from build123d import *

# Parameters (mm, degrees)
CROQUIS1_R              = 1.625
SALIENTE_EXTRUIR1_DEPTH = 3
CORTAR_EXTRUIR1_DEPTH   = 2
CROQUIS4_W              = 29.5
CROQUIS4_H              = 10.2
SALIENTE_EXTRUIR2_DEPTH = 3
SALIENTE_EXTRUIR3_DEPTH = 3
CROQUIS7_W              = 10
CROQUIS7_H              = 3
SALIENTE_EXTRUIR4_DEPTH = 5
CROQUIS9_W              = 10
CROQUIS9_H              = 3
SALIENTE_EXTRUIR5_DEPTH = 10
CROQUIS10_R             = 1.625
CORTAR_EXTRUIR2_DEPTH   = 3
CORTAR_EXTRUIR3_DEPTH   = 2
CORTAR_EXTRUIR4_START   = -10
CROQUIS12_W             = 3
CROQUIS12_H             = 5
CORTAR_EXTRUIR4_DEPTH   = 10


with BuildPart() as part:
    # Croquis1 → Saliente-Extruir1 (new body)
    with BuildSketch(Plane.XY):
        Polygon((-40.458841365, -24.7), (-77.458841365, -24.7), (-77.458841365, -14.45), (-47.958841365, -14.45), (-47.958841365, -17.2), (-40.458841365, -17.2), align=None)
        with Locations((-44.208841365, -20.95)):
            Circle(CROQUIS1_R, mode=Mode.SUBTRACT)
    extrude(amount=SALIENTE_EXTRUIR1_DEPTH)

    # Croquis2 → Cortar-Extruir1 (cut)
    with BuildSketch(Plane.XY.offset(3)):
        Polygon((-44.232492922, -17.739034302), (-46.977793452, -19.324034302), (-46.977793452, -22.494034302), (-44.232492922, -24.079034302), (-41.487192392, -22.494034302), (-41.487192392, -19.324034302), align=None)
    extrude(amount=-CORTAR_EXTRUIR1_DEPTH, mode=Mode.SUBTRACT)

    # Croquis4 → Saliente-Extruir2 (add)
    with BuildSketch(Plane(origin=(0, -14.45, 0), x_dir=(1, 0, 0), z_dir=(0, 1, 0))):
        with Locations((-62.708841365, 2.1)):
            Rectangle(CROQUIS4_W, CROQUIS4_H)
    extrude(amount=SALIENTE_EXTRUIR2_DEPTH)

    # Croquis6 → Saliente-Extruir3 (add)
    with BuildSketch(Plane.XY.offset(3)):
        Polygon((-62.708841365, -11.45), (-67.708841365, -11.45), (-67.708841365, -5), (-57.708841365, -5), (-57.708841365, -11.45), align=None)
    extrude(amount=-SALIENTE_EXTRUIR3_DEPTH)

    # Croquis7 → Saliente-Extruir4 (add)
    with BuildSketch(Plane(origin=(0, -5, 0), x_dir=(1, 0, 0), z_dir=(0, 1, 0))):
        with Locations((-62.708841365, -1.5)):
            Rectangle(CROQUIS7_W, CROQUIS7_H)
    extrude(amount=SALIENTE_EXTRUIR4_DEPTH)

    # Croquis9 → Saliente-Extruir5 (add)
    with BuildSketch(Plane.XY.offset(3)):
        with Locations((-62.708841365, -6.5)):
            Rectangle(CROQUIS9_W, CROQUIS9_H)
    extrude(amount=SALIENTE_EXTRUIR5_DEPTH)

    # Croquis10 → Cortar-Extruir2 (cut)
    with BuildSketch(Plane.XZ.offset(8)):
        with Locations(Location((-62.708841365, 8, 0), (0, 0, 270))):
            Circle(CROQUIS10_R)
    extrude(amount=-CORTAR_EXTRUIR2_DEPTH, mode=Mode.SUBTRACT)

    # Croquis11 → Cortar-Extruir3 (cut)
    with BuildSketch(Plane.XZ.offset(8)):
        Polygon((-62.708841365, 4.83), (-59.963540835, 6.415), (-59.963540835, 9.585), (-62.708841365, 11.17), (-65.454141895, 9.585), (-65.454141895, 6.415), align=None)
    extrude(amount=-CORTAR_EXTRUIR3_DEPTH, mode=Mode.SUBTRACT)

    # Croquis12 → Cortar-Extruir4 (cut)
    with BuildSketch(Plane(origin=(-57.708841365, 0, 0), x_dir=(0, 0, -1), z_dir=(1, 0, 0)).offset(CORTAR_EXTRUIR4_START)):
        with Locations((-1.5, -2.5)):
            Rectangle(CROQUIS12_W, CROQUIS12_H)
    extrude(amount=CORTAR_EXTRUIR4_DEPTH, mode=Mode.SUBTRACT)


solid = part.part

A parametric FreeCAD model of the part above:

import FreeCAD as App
import Part
import Sketcher
Q = App.Units.Quantity

doc = App.newDocument("Part")
body = doc.addObject("PartDesign::Body", "Body")

# Sketch on XY plane
sketch1 = doc.addObject("Sketcher::SketchObject", "Sketch")
body.addObject(sketch1)
sketch1.AttachmentSupport = (doc.XY_Plane, [""])
sketch1.MapMode = "FlatFace"
sketch1.addGeometry([
    Part.LineSegment(App.Vector(-77.458841, -24.7, 0), App.Vector(-40.458841, -24.7, 0)),  # 0
    Part.LineSegment(App.Vector(-40.458841, -24.7, 0), App.Vector(-40.458841, -17.2, 0)),  # 1
    Part.LineSegment(App.Vector(-40.458841, -17.2, 0), App.Vector(-47.958841, -17.2, 0)),  # 2
    Part.LineSegment(App.Vector(-47.958841, -17.2, 0), App.Vector(-47.958841, -14.45, 0)),  # 3
    Part.LineSegment(App.Vector(-47.958841, -14.45, 0), App.Vector(-77.458841, -14.45, 0)),  # 4
    Part.LineSegment(App.Vector(-77.458841, -14.45, 0), App.Vector(-77.458841, -24.7, 0)),  # 5
    Part.Circle(App.Vector(-44.208841, -20.95, 0), App.Vector(0, 0, 1), 1.625),  # 6
], False)
sketch1.addConstraint([
    Sketcher.Constraint("Coincident", 0, 2, 1, 1),
    Sketcher.Constraint("Coincident", 1, 2, 2, 1),
    Sketcher.Constraint("Coincident", 2, 2, 3, 1),
    Sketcher.Constraint("Coincident", 3, 2, 4, 1),
    Sketcher.Constraint("Coincident", 4, 2, 5, 1),
    Sketcher.Constraint("Coincident", 5, 2, 0, 1),
    Sketcher.Constraint("Horizontal", 0),
    Sketcher.Constraint("Vertical", 1),
    Sketcher.Constraint("Horizontal", 2),
    Sketcher.Constraint("Vertical", 3),
    Sketcher.Constraint("Horizontal", 4),
    Sketcher.Constraint("Vertical", 5),
    Sketcher.Constraint("Equal", 2, 1),
    Sketcher.Constraint("Diameter", 6, 3.25),
    Sketcher.Constraint("DistanceX", 0, 1, 0, 2, 37.0),
    Sketcher.Constraint("DistanceX", 2, 2, 2, 1, 7.5),
    Sketcher.Constraint("DistanceY", 3, 1, 3, 2, 2.75),
    Sketcher.Constraint("DistanceY", 0, 2, -1, 1, 24.7),
    Sketcher.Constraint("DistanceY", 6, 3, 3, 2, 6.5),
    Sketcher.Constraint("DistanceX", 6, 3, 0, 2, 3.75),
    Sketcher.Constraint("DistanceX", 6, 3, -1, 1, 44.208841),
])
pad1 = doc.addObject("PartDesign::Pad", "Pad")
body.addObject(pad1)
pad1.Profile = sketch1
pad1.Length = 3

# Sketch on XY plane
sketch2 = doc.addObject("Sketcher::SketchObject", "Sketch001")
body.addObject(sketch2)
sketch2.AttachmentSupport = (doc.XY_Plane, [""])
sketch2.MapMode = "FlatFace"
sketch2.AttachmentOffset = App.Placement(App.Vector(0, 0, 3), App.Rotation())
sketch2.addGeometry([
    Part.LineSegment(App.Vector(-44.232493, -17.739034, 0), App.Vector(-46.977793, -19.324034, 0)),  # 0
    Part.LineSegment(App.Vector(-46.977793, -19.324034, 0), App.Vector(-46.977793, -22.494034, 0)),  # 1
    Part.LineSegment(App.Vector(-46.977793, -22.494034, 0), App.Vector(-44.232493, -24.079034, 0)),  # 2
    Part.LineSegment(App.Vector(-44.232493, -24.079034, 0), App.Vector(-41.487192, -22.494034, 0)),  # 3
    Part.LineSegment(App.Vector(-41.487192, -22.494034, 0), App.Vector(-41.487192, -19.324034, 0)),  # 4
    Part.LineSegment(App.Vector(-41.487192, -19.324034, 0), App.Vector(-44.232493, -17.739034, 0)),  # 5
], False)
sketch2.addConstraint([
    Sketcher.Constraint("Coincident", 0, 2, 1, 1),
    Sketcher.Constraint("Coincident", 1, 2, 2, 1),
    Sketcher.Constraint("Coincident", 2, 2, 3, 1),
    Sketcher.Constraint("Coincident", 3, 2, 4, 1),
    Sketcher.Constraint("Coincident", 4, 2, 5, 1),
    Sketcher.Constraint("Coincident", 5, 2, 0, 1),
    Sketcher.Constraint("Vertical", 1),
    Sketcher.Constraint("Vertical", 4),
    Sketcher.Constraint("Parallel", 0, 3),
    Sketcher.Constraint("Parallel", 2, 5),
    Sketcher.Constraint("Horizontal", 1, 2, 3, 2),
    Sketcher.Constraint("Horizontal", 0, 2, 4, 2),
    Sketcher.Constraint("Vertical", 2, 2, 5, 2),
    Sketcher.Constraint("Angle", 0, Q("-150 deg")),
    Sketcher.Constraint("DistanceY", 1, 2, 1, 1, 3.17),
    Sketcher.Constraint("Distance", 0, 3.17),
    Sketcher.Constraint("DistanceX", 0, 2, -1, 1, 46.977793),
    Sketcher.Constraint("DistanceY", 0, 2, -1, 1, 19.324034),
])
pocket1 = doc.addObject("PartDesign::Pocket", "Pocket")
body.addObject(pocket1)
pocket1.Profile = sketch2
pocket1.Length = 2

# Sketch on XZ plane
sketch3 = doc.addObject("Sketcher::SketchObject", "Sketch002")
body.addObject(sketch3)
sketch3.AttachmentSupport = (doc.XZ_Plane, [""])
sketch3.MapMode = "FlatFace"
sketch3.AttachmentOffset = App.Placement(App.Vector(0, 0, 14.45), App.Rotation())
sketch3.addGeometry([
    Part.LineSegment(App.Vector(-77.458841, -7.2, 0), App.Vector(-77.458841, 3, 0)),
    Part.LineSegment(App.Vector(-77.458841, 3, 0), App.Vector(-47.958841, 3, 0)),
    Part.LineSegment(App.Vector(-47.958841, 3, 0), App.Vector(-47.958841, -7.2, 0)),
    Part.LineSegment(App.Vector(-47.958841, -7.2, 0), App.Vector(-77.458841, -7.2, 0)),
], False)
sketch3.addConstraint([
    Sketcher.Constraint("Coincident", 0, 2, 1, 1),
    Sketcher.Constraint("Coincident", 1, 2, 2, 1),
    Sketcher.Constraint("Coincident", 2, 2, 3, 1),
    Sketcher.Constraint("Coincident", 3, 2, 0, 1),
    Sketcher.Constraint("Vertical", 0),
    Sketcher.Constraint("Horizontal", 1),
    Sketcher.Constraint("Vertical", 2),
    Sketcher.Constraint("Horizontal", 3),
    Sketcher.Constraint("DistanceX", 1, 1, 1, 2, 29.5),
    Sketcher.Constraint("DistanceY", 0, 1, 0, 2, 10.2),
    Sketcher.Constraint("DistanceY", -1, 1, 0, 2, 3.0),
    Sketcher.Constraint("DistanceX", 0, 2, -1, 1, 77.458841),
])
pad2 = doc.addObject("PartDesign::Pad", "Pad001")
body.addObject(pad2)
pad2.Profile = sketch3
pad2.Length = 3
pad2.Reversed = True

# Sketch on XY plane
sketch4 = doc.addObject("Sketcher::SketchObject", "Sketch003")
body.addObject(sketch4)
sketch4.AttachmentSupport = (doc.XY_Plane, [""])
sketch4.MapMode = "FlatFace"
sketch4.AttachmentOffset = App.Placement(App.Vector(0, 0, 3), App.Rotation())
sketch4.addGeometry([
    Part.LineSegment(App.Vector(-67.708841, -11.45, 0), App.Vector(-57.708841, -11.45, 0)),
    Part.LineSegment(App.Vector(-57.708841, -11.45, 0), App.Vector(-57.708841, -5, 0)),
    Part.LineSegment(App.Vector(-57.708841, -5, 0), App.Vector(-67.708841, -5, 0)),
    Part.LineSegment(App.Vector(-67.708841, -5, 0), App.Vector(-67.708841, -11.45, 0)),
], False)
sketch4.addConstraint([
    Sketcher.Constraint("Coincident", 0, 2, 1, 1),
    Sketcher.Constraint("Coincident", 1, 2, 2, 1),
    Sketcher.Constraint("Coincident", 2, 2, 3, 1),
    Sketcher.Constraint("Coincident", 3, 2, 0, 1),
    Sketcher.Constraint("Horizontal", 0),
    Sketcher.Constraint("Vertical", 1),
    Sketcher.Constraint("Horizontal", 2),
    Sketcher.Constraint("Vertical", 3),
    Sketcher.Constraint("DistanceX", 0, 1, 0, 2, 10.0),
    Sketcher.Constraint("DistanceY", 1, 2, -1, 1, 5.0),
    Sketcher.Constraint("DistanceY", 1, 1, 1, 2, 6.45),
    Sketcher.Constraint("DistanceX", 0, 2, -1, 1, 57.708841),
])
pad3 = doc.addObject("PartDesign::Pad", "Pad002")
body.addObject(pad3)
pad3.Profile = sketch4
pad3.Length = 3
pad3.Reversed = True

# Sketch on XZ plane
sketch5 = doc.addObject("Sketcher::SketchObject", "Sketch004")
body.addObject(sketch5)
sketch5.AttachmentSupport = (doc.XZ_Plane, [""])
sketch5.MapMode = "FlatFace"
sketch5.AttachmentOffset = App.Placement(App.Vector(0, 0, 5), App.Rotation())
sketch5.addGeometry([
    Part.LineSegment(App.Vector(-67.708841, 0, 0), App.Vector(-67.708841, 3, 0)),
    Part.LineSegment(App.Vector(-67.708841, 3, 0), App.Vector(-57.708841, 3, 0)),
    Part.LineSegment(App.Vector(-57.708841, 3, 0), App.Vector(-57.708841, 0, 0)),
    Part.LineSegment(App.Vector(-57.708841, 0, 0), App.Vector(-67.708841, 0, 0)),
], False)
sketch5.addConstraint([
    Sketcher.Constraint("Coincident", 0, 2, 1, 1),
    Sketcher.Constraint("Coincident", 1, 2, 2, 1),
    Sketcher.Constraint("Coincident", 2, 2, 3, 1),
    Sketcher.Constraint("Coincident", 3, 2, 0, 1),
    Sketcher.Constraint("Vertical", 0),
    Sketcher.Constraint("Horizontal", 1),
    Sketcher.Constraint("Vertical", 2),
    Sketcher.Constraint("Horizontal", 3),
    Sketcher.Constraint("PointOnObject", 2, 2, -1),
    Sketcher.Constraint("DistanceX", 1, 1, 1, 2, 10.0),
    Sketcher.Constraint("DistanceY", 0, 1, 0, 2, 3.0),
    Sketcher.Constraint("DistanceX", 0, 2, -1, 1, 67.708841),
])
pad4 = doc.addObject("PartDesign::Pad", "Pad003")
body.addObject(pad4)
pad4.Profile = sketch5
pad4.Length = 5
pad4.Reversed = True

# Sketch on XY plane
sketch6 = doc.addObject("Sketcher::SketchObject", "Sketch005")
body.addObject(sketch6)
sketch6.AttachmentSupport = (doc.XY_Plane, [""])
sketch6.MapMode = "FlatFace"
sketch6.AttachmentOffset = App.Placement(App.Vector(0, 0, 3), App.Rotation())
sketch6.addGeometry([
    Part.LineSegment(App.Vector(-67.708841, -5, 0), App.Vector(-67.708841, -8, 0)),
    Part.LineSegment(App.Vector(-67.708841, -8, 0), App.Vector(-57.708841, -8, 0)),
    Part.LineSegment(App.Vector(-57.708841, -8, 0), App.Vector(-57.708841, -5, 0)),
    Part.LineSegment(App.Vector(-57.708841, -5, 0), App.Vector(-67.708841, -5, 0)),
], False)
sketch6.addConstraint([
    Sketcher.Constraint("Coincident", 0, 2, 1, 1),
    Sketcher.Constraint("Coincident", 1, 2, 2, 1),
    Sketcher.Constraint("Coincident", 2, 2, 3, 1),
    Sketcher.Constraint("Coincident", 3, 2, 0, 1),
    Sketcher.Constraint("Vertical", 0),
    Sketcher.Constraint("Horizontal", 1),
    Sketcher.Constraint("Vertical", 2),
    Sketcher.Constraint("Horizontal", 3),
    Sketcher.Constraint("DistanceX", 1, 1, 1, 2, 10.0),
    Sketcher.Constraint("DistanceY", 0, 2, 0, 1, 3.0),
    Sketcher.Constraint("DistanceY", 0, 2, -1, 1, 8.0),
    Sketcher.Constraint("DistanceX", 0, 2, -1, 1, 67.708841),
])
pad5 = doc.addObject("PartDesign::Pad", "Pad004")
body.addObject(pad5)
pad5.Profile = sketch6
pad5.Length = 10

# Sketch on XZ plane
sketch7 = doc.addObject("Sketcher::SketchObject", "Sketch006")
body.addObject(sketch7)
sketch7.AttachmentSupport = (doc.XZ_Plane, [""])
sketch7.MapMode = "FlatFace"
sketch7.AttachmentOffset = App.Placement(App.Vector(0, 0, 8), App.Rotation())
sketch7.addGeometry(Part.Circle(App.Vector(-62.708841, 8, 0), App.Vector(0, 0, 1), 1.625), False)
sketch7.addConstraint([
    Sketcher.Constraint("Diameter", 0, 3.25),
    Sketcher.Constraint("DistanceY", -1, 1, 0, 3, 8.0),
    Sketcher.Constraint("DistanceX", 0, 3, -1, 1, 62.708841),
])
pocket2 = doc.addObject("PartDesign::Pocket", "Pocket001")
body.addObject(pocket2)
pocket2.Profile = sketch7
pocket2.Length = 3

# Sketch on XZ plane
sketch8 = doc.addObject("Sketcher::SketchObject", "Sketch007")
body.addObject(sketch8)
sketch8.AttachmentSupport = (doc.XZ_Plane, [""])
sketch8.MapMode = "FlatFace"
sketch8.AttachmentOffset = App.Placement(App.Vector(0, 0, 8), App.Rotation())
sketch8.addGeometry([
    Part.LineSegment(App.Vector(-62.708841, 4.83, 0), App.Vector(-59.963541, 6.415, 0)),  # 0
    Part.LineSegment(App.Vector(-59.963541, 6.415, 0), App.Vector(-59.963541, 9.585, 0)),  # 1
    Part.LineSegment(App.Vector(-59.963541, 9.585, 0), App.Vector(-62.708841, 11.17, 0)),  # 2
    Part.LineSegment(App.Vector(-62.708841, 11.17, 0), App.Vector(-65.454142, 9.585, 0)),  # 3
    Part.LineSegment(App.Vector(-65.454142, 9.585, 0), App.Vector(-65.454142, 6.415, 0)),  # 4
    Part.LineSegment(App.Vector(-65.454142, 6.415, 0), App.Vector(-62.708841, 4.83, 0)),  # 5
], False)
sketch8.addConstraint([
    Sketcher.Constraint("Coincident", 0, 2, 1, 1),
    Sketcher.Constraint("Coincident", 1, 2, 2, 1),
    Sketcher.Constraint("Coincident", 2, 2, 3, 1),
    Sketcher.Constraint("Coincident", 3, 2, 4, 1),
    Sketcher.Constraint("Coincident", 4, 2, 5, 1),
    Sketcher.Constraint("Coincident", 5, 2, 0, 1),
    Sketcher.Constraint("Vertical", 1),
    Sketcher.Constraint("Vertical", 4),
    Sketcher.Constraint("Parallel", 0, 3),
    Sketcher.Constraint("Parallel", 2, 5),
    Sketcher.Constraint("Horizontal", 1, 2, 3, 2),
    Sketcher.Constraint("Horizontal", 0, 2, 4, 2),
    Sketcher.Constraint("Vertical", 2, 2, 5, 2),
    Sketcher.Constraint("Angle", 0, Q("30 deg")),
    Sketcher.Constraint("DistanceY", 1, 1, 1, 2, 3.17),
    Sketcher.Constraint("Distance", 0, 3.17),
    Sketcher.Constraint("DistanceY", -1, 1, 2, 2, 11.17),
    Sketcher.Constraint("DistanceX", 0, 2, -1, 1, 59.963541),
])
pocket3 = doc.addObject("PartDesign::Pocket", "Pocket002")
body.addObject(pocket3)
pocket3.Profile = sketch8
pocket3.Length = 2

# Sketch on YZ plane
sketch9 = doc.addObject("Sketcher::SketchObject", "Sketch008")
body.addObject(sketch9)
sketch9.AttachmentSupport = (doc.YZ_Plane, [""])
sketch9.MapMode = "FlatFace"
sketch9.AttachmentOffset = App.Placement(App.Vector(0, 0, -67.708841), App.Rotation())
sketch9.addGeometry([
    Part.LineSegment(App.Vector(0, 3, 0), App.Vector(-5, 3, 0)),
    Part.LineSegment(App.Vector(-5, 3, 0), App.Vector(-5, 0, 0)),
    Part.LineSegment(App.Vector(-5, 0, 0), App.Vector(0, 0, 0)),
    Part.LineSegment(App.Vector(0, 0, 0), App.Vector(0, 3, 0)),
], False)
sketch9.addConstraint([
    Sketcher.Constraint("Coincident", 0, 2, 1, 1),
    Sketcher.Constraint("Coincident", 1, 2, 2, 1),
    Sketcher.Constraint("Coincident", 2, 2, 3, 1),
    Sketcher.Constraint("Coincident", 3, 2, 0, 1),
    Sketcher.Constraint("Horizontal", 0),
    Sketcher.Constraint("Vertical", 1),
    Sketcher.Constraint("Horizontal", 2),
    Sketcher.Constraint("Vertical", 3),
    Sketcher.Constraint("Coincident", 2, 2, -1, 1),
    Sketcher.Constraint("DistanceX", 0, 2, 0, 1, 5.0),
    Sketcher.Constraint("DistanceY", 1, 2, 1, 1, 3.0),
])
pocket4 = doc.addObject("PartDesign::Pocket", "Pocket003")
body.addObject(pocket4)
pocket4.Profile = sketch9
pocket4.Length = 10
pocket4.Reversed = True

doc.recompute()
